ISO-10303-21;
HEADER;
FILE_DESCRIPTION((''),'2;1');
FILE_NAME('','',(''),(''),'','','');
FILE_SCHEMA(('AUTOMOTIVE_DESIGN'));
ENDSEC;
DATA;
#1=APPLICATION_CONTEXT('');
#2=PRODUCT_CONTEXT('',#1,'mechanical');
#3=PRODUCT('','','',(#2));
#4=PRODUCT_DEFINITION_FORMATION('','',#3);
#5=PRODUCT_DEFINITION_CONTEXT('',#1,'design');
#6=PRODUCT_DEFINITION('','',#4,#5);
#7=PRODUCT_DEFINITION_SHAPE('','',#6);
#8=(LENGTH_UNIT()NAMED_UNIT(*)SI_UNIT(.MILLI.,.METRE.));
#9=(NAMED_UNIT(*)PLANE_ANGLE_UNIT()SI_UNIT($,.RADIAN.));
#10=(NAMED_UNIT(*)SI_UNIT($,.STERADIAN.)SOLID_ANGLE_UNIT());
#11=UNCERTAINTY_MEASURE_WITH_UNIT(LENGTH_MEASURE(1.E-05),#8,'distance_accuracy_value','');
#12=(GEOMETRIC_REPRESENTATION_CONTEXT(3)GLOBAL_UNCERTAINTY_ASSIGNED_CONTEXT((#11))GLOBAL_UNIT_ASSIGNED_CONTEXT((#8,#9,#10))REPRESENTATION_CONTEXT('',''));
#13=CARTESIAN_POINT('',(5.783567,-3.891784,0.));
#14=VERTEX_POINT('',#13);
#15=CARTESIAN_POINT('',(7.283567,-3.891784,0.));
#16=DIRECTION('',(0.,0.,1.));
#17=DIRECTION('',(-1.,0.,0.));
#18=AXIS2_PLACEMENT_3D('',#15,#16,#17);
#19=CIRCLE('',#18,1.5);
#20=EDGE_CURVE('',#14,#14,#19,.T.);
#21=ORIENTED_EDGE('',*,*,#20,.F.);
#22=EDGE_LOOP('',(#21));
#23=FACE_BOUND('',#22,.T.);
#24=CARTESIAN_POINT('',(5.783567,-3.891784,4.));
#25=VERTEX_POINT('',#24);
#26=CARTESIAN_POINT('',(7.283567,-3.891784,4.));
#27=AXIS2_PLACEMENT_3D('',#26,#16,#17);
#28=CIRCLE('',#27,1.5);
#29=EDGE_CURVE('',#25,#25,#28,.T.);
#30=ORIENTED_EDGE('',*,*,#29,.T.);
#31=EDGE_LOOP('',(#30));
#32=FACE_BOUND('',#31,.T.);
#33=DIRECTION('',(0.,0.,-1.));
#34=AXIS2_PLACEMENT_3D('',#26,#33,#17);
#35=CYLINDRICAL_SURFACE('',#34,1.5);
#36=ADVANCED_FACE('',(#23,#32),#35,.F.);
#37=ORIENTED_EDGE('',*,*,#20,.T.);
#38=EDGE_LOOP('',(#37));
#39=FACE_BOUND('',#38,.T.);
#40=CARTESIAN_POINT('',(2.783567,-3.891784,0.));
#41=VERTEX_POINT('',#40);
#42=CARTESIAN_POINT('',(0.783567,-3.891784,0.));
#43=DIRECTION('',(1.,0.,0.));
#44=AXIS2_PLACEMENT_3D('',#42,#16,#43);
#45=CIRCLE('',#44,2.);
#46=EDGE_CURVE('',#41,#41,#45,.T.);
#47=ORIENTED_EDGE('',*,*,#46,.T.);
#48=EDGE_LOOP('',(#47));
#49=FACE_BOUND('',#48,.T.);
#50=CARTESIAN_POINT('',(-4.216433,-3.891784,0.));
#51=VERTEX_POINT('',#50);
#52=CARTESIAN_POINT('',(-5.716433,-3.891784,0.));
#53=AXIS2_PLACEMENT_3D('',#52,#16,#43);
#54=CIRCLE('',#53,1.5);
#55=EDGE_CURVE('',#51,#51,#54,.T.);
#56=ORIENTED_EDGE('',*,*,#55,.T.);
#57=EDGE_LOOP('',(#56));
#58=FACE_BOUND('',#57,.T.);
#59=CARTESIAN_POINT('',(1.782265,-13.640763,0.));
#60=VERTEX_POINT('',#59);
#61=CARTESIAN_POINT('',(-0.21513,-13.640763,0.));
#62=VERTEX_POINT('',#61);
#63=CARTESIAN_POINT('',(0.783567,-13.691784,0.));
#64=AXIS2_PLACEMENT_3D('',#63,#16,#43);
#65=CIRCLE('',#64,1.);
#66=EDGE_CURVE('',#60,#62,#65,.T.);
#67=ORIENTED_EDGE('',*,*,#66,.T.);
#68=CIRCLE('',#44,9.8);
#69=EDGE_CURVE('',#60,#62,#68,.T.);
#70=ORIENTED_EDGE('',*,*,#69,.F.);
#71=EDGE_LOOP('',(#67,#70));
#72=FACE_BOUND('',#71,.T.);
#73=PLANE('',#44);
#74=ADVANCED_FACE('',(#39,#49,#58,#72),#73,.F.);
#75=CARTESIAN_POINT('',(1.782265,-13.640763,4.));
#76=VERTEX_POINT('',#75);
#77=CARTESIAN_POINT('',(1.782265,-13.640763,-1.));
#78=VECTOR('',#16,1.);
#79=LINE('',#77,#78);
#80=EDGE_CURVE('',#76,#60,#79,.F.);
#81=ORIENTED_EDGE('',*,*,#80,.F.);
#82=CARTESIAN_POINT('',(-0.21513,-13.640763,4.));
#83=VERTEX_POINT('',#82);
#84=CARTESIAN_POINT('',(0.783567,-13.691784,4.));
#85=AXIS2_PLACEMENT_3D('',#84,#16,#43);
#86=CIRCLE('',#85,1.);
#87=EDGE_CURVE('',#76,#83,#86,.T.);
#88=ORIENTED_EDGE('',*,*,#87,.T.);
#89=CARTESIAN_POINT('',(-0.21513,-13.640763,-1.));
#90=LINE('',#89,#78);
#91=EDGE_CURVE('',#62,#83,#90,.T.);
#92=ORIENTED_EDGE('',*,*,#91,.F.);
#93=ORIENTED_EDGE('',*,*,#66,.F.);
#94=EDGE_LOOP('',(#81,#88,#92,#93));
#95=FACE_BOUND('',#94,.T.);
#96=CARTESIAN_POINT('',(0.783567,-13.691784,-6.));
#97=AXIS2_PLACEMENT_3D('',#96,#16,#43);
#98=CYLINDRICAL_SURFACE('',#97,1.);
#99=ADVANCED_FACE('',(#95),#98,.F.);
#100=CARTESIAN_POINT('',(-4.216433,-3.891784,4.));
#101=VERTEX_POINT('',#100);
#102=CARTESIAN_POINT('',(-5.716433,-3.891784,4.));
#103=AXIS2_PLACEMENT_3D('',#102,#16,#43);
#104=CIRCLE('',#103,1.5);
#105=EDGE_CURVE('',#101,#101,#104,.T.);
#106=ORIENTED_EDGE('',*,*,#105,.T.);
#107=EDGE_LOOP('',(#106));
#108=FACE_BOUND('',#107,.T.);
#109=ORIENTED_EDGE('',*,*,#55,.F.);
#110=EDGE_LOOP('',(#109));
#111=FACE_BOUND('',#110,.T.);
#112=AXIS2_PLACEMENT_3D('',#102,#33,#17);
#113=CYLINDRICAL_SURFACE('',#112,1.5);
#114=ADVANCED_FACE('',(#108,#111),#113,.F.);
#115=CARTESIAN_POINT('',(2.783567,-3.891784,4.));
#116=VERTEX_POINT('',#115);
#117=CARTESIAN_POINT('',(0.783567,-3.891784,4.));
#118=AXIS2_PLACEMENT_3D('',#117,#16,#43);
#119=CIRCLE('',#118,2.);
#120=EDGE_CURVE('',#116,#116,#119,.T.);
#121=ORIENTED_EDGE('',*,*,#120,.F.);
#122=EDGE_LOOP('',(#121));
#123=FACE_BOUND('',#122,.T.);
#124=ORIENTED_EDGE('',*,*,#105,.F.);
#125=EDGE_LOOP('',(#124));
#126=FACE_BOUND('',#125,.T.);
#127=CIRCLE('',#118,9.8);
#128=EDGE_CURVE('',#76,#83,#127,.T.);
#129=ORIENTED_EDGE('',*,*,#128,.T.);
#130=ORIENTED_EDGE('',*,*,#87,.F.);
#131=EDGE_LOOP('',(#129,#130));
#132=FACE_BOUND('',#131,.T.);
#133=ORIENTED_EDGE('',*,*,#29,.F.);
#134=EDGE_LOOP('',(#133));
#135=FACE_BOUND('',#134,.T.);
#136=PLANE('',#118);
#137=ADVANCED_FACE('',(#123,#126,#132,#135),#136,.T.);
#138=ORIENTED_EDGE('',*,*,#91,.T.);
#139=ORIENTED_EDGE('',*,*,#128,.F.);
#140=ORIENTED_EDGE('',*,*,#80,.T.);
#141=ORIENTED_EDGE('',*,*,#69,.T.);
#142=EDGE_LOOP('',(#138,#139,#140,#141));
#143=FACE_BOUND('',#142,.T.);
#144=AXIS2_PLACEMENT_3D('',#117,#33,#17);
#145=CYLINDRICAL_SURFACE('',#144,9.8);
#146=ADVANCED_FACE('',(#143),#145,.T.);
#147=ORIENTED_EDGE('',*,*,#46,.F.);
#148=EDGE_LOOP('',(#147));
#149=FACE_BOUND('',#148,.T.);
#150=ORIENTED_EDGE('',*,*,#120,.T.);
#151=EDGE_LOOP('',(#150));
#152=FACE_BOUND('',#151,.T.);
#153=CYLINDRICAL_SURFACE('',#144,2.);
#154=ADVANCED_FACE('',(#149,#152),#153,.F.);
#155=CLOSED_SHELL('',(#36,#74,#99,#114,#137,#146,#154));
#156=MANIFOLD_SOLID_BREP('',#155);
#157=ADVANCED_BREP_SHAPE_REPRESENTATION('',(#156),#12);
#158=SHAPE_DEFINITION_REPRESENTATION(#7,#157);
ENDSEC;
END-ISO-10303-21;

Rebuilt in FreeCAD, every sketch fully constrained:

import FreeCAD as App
import Part
import Sketcher

V = App.Vector
Q = App.Units.Quantity

doc = App.newDocument("Part")
body = doc.addObject("PartDesign::Body", "Body")

# Sketch on XY plane
sketch1 = doc.addObject("Sketcher::SketchObject", "Sketch")
body.addObject(sketch1)
sketch1.AttachmentSupport = (doc.XY_Plane, [""])
sketch1.MapMode = "FlatFace"
sketch1.addGeometry([
    Part.Circle(V(0.8, -3.9, 0), V(0, 0, 1), 9.8),
    Part.Circle(V(-5.7, -3.9, 0), V(0, 0, 1), 1.5),
    Part.Circle(V(0.8, -3.9, 0), V(0, 0, 1), 2),
    Part.Circle(V(7.3, -3.9, 0), V(0, 0, 1), 1.5),
], False)
sketch1.addConstraint([
    Sketcher.Constraint("Coincident", 2, 3, 0, 3),
    Sketcher.Constraint("Equal", 1, 3),
    Sketcher.Constraint("Horizontal", 0, 3, 1, 3),
    Sketcher.Constraint("Horizontal", 2, 3, 3, 3),
    Sketcher.Constraint("Diameter", 1, Q("3 mm")),
    Sketcher.Constraint("Diameter", 2, Q("4 mm")),
    Sketcher.Constraint("Diameter", 0, Q("19.6 mm")),
    Sketcher.Constraint("DistanceX", 1, 3, 3, 3, Q("13 mm")),
    Sketcher.Constraint("DistanceX", 1, 3, 0, 3, Q("6.5 mm")),
    Sketcher.Constraint("DistanceX", -1, 1, 0, 3, Q("0.783567 mm")),
    Sketcher.Constraint("DistanceY", 0, 3, -1, 1, Q("3.891784 mm")),
])
pad1 = doc.addObject("PartDesign::Pad", "Pad")
body.addObject(pad1)
pad1.Profile = sketch1
pad1.Length = 4

# Sketch on XY plane
sketch2 = doc.addObject("Sketcher::SketchObject", "Sketch001")
body.addObject(sketch2)
sketch2.AttachmentSupport = (doc.XY_Plane, [""])
sketch2.MapMode = "FlatFace"
sketch2.AttachmentOffset = App.Placement(V(0, 0, 4), App.Rotation())
sketch2.addGeometry(Part.Circle(V(0.8, -13.7, 0), V(0, 0, 1), 1), False)
sketch2.addConstraint([
    Sketcher.Constraint("Diameter", 0, Q("2 mm")),
    Sketcher.Constraint("DistanceX", -1, 1, 0, 3, Q("0.783567 mm")),
    Sketcher.Constraint("DistanceY", 0, 3, -1, 1, Q("13.691784 mm")),
])
pocket1 = doc.addObject("PartDesign::Pocket", "Pocket")
body.addObject(pocket1)
pocket1.Profile = sketch2
pocket1.Length = 10

doc.recompute()
